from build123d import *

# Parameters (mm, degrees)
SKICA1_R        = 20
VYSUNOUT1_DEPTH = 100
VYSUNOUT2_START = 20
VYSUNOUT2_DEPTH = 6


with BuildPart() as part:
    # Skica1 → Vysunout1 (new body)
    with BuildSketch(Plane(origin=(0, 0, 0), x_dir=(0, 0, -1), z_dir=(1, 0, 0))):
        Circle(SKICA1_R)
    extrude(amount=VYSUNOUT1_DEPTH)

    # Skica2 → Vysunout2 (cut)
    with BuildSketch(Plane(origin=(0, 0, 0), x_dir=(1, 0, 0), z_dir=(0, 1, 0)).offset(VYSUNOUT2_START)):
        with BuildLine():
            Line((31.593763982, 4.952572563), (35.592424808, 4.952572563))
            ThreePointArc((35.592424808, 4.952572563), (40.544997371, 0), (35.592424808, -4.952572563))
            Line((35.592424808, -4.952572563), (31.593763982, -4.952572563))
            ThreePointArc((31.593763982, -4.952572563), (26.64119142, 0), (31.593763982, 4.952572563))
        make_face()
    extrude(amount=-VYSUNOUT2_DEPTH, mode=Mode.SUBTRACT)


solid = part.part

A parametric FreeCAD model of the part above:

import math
import FreeCAD as App
import Part
import Sketcher

doc = App.newDocument("Part")
params = doc.addObject("Spreadsheet::Sheet", "Params")
for row, (alias, value) in enumerate([
    ("sketch1_diameter", "40 mm"),
    ("pad1_length", "100 mm"),
    ("pocket1_length", "6 mm"),
], start=1):
    params.set(f"A{row}", alias)
    params.set(f"B{row}", "=" + value)
    params.setAlias(f"B{row}", alias)

body = doc.addObject("PartDesign::Body", "Body")

# Sketch on YZ plane
sketch1 = doc.addObject("Sketcher::SketchObject", "Sketch")
body.addObject(sketch1)
sketch1.AttachmentSupport = (doc.YZ_Plane, [""])
sketch1.MapMode = "FlatFace"
sketch1.addGeometry(Part.Circle(App.Vector(0, 0, 0), App.Vector(0, 0, 1), 20), False)
sketch1.addConstraint([
    Sketcher.Constraint("Coincident", 0, 3, -1, 1),
    Sketcher.Constraint("Diameter", 0, 40.0),
])
sketch1.setExpression("Constraints[1]", "Params.sketch1_diameter")
pad1 = doc.addObject("PartDesign::Pad", "Pad")
body.addObject(pad1)
pad1.Profile = sketch1
pad1.setExpression("Length", "Params.pad1_length")

# Sketch on XZ plane
sketch2 = doc.addObject("Sketcher::SketchObject", "Sketch001")
body.addObject(sketch2)
sketch2.AttachmentSupport = (doc.XZ_Plane, [""])
sketch2.MapMode = "FlatFace"
sketch2.AttachmentOffset = App.Placement(App.Vector(0, 0, -20), App.Rotation())
sketch2.addGeometry([
    Part.LineSegment(App.Vector(35.6, -5, 0), App.Vector(31.6, -5, 0)),
    Part.ArcOfCircle(Part.Circle(App.Vector(31.6, 0, 0), App.Vector(0, 0, 1), 5), math.radians(90), math.radians(270)),
    Part.LineSegment(App.Vector(31.6, 5, 0), App.Vector(35.6, 5, 0)),
    Part.ArcOfCircle(Part.Circle(App.Vector(35.6, 0, 0), App.Vector(0, 0, 1), 5), math.radians(-90), math.radians(90)),
], False)
sketch2.addConstraint([
    Sketcher.Constraint("Tangent", 0, 2, 1, 2),
    Sketcher.Constraint("Tangent", 1, 1, 2, 1),
    Sketcher.Constraint("Tangent", 2, 2, 3, 2),
    Sketcher.Constraint("Tangent", 3, 1, 0, 1),
    Sketcher.Constraint("Horizontal", 0),
    Sketcher.Constraint("Horizontal", 2),
    Sketcher.Constraint("PointOnObject", 1, 3, -1),
    Sketcher.Constraint("Radius", 1, 4.952573),
    Sketcher.Constraint("DistanceX", 0, 2, 0, 1, 3.998661),
    Sketcher.Constraint("DistanceX", -1, 1, 1, 3, 31.593764),
])
pocket1 = doc.addObject("PartDesign::Pocket", "Pocket")
body.addObject(pocket1)
pocket1.Profile = sketch2
pocket1.setExpression("Length", "Params.pocket1_length")
pocket1.Reversed = True

doc.recompute()
